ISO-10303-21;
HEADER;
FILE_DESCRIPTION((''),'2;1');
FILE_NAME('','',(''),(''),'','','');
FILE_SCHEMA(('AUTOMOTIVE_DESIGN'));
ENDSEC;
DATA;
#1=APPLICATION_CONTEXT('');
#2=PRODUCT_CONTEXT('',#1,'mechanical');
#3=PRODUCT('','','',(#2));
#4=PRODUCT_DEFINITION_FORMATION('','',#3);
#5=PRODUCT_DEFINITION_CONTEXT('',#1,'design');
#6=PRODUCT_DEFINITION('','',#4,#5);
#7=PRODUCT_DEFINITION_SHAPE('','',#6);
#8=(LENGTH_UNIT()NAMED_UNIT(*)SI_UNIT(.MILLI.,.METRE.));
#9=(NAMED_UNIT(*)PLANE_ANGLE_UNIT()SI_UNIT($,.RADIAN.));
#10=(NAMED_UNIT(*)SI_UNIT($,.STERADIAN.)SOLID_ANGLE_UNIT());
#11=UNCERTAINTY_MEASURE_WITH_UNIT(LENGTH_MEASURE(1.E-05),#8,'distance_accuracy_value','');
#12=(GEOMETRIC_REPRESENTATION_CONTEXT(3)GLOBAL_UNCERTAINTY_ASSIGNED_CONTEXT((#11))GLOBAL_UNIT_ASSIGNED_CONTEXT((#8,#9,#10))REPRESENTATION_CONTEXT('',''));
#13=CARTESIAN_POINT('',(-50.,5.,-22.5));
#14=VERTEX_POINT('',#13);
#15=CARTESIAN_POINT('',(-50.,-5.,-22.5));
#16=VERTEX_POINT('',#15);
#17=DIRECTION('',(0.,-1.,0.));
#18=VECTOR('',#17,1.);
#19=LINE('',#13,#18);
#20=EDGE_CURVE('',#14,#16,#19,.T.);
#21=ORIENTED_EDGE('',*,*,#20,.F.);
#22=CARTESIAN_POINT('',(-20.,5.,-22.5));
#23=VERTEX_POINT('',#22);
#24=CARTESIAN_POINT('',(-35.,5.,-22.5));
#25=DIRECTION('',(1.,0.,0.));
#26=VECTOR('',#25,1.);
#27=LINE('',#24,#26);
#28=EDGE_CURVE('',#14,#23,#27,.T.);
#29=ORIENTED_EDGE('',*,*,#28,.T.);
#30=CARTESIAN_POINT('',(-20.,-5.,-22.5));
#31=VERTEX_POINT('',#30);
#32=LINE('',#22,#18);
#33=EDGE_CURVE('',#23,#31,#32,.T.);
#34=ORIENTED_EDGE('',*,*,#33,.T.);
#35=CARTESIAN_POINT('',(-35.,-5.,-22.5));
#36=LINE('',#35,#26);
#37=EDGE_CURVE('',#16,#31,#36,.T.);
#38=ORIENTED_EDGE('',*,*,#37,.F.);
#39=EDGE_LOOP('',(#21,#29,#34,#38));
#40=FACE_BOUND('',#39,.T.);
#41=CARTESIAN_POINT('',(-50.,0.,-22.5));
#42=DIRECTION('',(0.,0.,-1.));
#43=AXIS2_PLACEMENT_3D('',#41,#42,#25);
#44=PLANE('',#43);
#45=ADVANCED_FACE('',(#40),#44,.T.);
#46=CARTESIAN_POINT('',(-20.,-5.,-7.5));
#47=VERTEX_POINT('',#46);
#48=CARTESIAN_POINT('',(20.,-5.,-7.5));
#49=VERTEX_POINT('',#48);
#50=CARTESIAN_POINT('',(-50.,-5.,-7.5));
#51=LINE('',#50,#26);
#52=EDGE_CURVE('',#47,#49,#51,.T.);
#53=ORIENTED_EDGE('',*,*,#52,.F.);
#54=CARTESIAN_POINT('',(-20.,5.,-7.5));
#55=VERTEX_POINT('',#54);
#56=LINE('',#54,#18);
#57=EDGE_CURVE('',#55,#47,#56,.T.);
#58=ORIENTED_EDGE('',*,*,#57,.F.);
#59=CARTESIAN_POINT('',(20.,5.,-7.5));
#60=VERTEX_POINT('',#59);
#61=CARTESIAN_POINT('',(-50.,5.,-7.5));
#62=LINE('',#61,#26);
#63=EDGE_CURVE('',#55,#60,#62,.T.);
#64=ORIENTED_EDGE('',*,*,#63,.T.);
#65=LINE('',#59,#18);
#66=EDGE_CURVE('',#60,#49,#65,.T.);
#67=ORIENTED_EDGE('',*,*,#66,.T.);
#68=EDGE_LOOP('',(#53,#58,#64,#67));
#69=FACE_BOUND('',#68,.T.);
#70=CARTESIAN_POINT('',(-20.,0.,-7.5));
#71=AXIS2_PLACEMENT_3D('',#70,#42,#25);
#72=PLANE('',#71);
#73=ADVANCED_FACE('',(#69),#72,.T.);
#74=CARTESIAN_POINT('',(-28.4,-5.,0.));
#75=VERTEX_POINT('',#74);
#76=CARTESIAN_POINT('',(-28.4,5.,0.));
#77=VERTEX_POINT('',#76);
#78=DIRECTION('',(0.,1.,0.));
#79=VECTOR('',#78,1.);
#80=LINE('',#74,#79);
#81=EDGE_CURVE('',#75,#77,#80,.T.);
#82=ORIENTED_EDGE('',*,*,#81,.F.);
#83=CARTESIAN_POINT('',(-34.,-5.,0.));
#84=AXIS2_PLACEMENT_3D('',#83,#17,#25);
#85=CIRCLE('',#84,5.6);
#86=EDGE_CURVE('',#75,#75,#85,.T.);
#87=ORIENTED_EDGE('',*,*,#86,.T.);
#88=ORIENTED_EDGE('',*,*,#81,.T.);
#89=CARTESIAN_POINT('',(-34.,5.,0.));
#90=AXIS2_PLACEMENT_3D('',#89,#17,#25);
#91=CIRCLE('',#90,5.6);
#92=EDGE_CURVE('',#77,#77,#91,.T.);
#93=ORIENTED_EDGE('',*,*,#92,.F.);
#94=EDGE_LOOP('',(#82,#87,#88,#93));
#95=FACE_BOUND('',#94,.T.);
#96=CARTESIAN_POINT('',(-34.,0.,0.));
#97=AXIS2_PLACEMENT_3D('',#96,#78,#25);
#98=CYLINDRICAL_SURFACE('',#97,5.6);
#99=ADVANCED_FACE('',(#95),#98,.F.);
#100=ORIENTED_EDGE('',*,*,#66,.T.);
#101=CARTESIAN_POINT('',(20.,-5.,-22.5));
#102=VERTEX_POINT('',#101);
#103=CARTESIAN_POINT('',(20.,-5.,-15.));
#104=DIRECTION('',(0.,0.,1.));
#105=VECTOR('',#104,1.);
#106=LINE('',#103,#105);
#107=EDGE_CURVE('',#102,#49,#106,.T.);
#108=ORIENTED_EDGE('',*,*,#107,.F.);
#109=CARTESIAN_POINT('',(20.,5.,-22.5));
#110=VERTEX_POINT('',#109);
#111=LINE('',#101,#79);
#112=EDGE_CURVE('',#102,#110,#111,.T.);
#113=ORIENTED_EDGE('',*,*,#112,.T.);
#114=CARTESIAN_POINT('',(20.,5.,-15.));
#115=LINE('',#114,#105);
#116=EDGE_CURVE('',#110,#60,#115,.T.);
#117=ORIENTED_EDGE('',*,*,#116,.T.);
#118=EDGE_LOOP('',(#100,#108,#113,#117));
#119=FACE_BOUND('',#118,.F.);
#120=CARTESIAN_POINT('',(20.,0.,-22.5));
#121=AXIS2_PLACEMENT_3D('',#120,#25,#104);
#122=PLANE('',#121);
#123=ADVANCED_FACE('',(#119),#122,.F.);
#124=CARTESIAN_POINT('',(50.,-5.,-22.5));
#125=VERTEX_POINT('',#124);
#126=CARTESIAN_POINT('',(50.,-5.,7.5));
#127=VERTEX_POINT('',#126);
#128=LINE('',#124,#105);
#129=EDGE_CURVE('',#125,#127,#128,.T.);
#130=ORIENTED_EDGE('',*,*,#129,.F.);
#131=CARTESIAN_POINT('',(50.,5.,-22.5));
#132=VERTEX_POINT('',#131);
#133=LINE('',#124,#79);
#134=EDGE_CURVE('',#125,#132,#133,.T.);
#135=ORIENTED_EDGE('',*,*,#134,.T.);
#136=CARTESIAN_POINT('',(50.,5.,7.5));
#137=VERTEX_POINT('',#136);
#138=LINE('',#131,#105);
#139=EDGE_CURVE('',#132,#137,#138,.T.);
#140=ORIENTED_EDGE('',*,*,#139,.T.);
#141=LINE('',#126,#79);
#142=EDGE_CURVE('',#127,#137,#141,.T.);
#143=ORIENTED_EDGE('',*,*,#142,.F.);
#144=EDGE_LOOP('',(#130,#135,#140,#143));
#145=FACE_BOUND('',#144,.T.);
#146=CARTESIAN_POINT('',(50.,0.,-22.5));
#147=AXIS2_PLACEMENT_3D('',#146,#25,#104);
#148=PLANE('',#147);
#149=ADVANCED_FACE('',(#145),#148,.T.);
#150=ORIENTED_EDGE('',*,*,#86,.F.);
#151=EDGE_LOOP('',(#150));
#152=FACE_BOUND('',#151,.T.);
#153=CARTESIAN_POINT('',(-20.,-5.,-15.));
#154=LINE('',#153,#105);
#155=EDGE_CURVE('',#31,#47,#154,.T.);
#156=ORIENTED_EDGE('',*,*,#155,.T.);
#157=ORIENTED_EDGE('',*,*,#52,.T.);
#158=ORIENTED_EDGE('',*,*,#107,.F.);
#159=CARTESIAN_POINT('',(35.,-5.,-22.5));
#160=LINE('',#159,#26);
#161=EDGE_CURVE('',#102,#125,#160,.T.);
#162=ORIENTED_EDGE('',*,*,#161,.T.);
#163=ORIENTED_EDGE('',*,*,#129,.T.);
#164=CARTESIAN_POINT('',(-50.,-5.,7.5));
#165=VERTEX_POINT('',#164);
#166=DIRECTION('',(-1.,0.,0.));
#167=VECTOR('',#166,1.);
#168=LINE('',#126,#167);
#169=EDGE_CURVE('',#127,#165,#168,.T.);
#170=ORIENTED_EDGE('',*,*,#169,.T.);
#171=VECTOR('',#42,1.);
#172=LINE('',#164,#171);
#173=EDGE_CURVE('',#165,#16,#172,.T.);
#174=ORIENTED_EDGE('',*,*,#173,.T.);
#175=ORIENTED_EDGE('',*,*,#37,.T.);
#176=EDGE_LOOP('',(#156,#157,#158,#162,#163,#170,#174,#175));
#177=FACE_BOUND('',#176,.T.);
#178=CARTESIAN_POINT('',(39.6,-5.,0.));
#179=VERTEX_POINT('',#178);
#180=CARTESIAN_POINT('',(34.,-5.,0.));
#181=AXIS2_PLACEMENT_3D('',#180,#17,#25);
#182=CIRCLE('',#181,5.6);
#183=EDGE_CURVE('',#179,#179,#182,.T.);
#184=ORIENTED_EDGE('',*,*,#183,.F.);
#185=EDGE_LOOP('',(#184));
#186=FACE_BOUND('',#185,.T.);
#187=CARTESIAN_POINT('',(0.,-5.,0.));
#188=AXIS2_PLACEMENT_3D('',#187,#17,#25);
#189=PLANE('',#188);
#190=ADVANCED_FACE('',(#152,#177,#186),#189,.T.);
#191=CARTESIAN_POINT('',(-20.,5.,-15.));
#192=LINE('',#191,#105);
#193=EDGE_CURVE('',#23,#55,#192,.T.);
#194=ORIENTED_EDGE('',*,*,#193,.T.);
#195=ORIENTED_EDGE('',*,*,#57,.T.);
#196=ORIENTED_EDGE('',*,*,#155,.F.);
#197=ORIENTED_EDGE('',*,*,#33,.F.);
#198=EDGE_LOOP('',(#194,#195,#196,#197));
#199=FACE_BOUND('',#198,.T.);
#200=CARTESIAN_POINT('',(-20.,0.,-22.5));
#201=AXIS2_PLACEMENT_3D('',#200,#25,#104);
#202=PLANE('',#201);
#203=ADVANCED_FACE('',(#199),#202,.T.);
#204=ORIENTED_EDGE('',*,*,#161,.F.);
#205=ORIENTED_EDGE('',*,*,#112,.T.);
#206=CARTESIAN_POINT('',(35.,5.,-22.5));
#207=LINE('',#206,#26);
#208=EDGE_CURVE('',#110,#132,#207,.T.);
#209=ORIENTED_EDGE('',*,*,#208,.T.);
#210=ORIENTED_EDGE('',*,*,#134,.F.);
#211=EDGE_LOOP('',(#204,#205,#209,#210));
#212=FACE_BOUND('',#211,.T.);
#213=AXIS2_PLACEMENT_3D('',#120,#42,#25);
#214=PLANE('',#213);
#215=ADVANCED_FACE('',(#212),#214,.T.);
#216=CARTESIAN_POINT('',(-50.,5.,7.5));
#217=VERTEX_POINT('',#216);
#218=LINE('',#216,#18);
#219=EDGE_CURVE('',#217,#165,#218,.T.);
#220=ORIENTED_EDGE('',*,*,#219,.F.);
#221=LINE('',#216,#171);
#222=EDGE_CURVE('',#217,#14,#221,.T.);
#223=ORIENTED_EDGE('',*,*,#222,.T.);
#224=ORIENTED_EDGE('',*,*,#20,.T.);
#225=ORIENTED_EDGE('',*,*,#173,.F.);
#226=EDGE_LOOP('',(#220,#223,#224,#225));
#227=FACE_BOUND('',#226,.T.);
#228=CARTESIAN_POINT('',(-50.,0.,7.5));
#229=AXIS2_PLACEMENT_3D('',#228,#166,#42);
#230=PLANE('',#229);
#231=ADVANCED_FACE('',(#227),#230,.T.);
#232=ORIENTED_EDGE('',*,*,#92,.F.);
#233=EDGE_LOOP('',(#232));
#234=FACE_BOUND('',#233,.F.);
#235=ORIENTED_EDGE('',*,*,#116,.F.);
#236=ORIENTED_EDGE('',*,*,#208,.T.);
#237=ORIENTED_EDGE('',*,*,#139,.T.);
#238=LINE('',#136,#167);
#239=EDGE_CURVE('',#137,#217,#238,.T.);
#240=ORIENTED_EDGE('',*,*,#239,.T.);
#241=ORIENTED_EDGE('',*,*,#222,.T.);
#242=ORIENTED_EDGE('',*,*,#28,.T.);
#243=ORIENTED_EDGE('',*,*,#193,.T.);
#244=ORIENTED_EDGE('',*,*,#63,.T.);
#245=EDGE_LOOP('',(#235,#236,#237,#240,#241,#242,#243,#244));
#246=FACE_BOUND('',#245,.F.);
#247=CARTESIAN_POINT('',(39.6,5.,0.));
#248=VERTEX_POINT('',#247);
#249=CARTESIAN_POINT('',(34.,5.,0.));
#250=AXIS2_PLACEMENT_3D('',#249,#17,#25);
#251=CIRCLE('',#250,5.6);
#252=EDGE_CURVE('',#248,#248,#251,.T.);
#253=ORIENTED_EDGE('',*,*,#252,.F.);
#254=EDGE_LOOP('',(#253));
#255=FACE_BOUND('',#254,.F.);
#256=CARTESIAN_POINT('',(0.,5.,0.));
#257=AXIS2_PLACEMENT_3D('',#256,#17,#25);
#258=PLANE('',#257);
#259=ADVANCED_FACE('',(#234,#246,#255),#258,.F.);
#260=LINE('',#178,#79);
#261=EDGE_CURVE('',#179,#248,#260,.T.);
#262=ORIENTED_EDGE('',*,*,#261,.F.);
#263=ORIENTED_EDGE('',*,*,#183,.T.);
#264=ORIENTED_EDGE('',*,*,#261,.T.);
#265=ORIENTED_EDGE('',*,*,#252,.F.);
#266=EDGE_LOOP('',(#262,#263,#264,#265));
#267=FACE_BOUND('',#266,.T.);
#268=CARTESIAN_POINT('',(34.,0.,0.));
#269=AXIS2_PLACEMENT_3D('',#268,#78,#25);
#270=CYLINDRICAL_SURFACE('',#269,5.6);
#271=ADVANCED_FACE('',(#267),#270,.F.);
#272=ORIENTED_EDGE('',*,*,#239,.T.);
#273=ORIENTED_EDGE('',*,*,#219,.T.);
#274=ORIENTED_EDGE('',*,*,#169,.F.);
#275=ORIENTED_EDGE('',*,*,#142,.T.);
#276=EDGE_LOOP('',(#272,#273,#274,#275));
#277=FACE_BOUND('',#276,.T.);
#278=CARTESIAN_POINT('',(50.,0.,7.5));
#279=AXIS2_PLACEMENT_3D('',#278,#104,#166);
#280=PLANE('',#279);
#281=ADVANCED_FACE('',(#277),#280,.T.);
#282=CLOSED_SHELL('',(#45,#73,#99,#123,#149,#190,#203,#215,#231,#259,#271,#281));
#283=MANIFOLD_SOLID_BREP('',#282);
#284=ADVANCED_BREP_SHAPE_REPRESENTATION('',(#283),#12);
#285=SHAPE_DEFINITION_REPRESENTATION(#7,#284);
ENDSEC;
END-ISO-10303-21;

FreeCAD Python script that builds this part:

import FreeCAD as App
import Part
import Sketcher
from FreeCAD import Vector


def add_polygon(sketch, points):
    """Adds a closed chain of lines whose ends are joined by coincident constraints."""
    first, n = sketch.GeometryCount, len(points)
    for a, b in zip(points, points[1:] + points[:1]):
        sketch.addGeometry(Part.LineSegment(App.Vector(*a, 0), App.Vector(*b, 0)), False)
    for i in range(n):
        sketch.addConstraint(Sketcher.Constraint("Coincident", first + i, 2, first + (i + 1) % n, 1))

doc = App.newDocument("Part")
body = doc.addObject("PartDesign::Body", "Body")

# Sketch on XZ plane
sketch1 = body.newObject("Sketcher::SketchObject", "Sketch")
sketch1.AttachmentSupport = (doc.getObject("XZ_Plane"), [""])
sketch1.MapMode = "FlatFace"
add_polygon(sketch1, [(50, 8), (-50, 8), (-50, -22), (-20, -22), (-20, -8), (20, -8), (20, -22), (50, -22)])  # lines 0-7
sketch1.addGeometry(Part.Circle(Vector(-34, 0, 0), Vector(0, 0, 1), 6), False)  # 8
sketch1.addGeometry(Part.Circle(Vector(34, 0, 0), Vector(0, 0, 1), 6), False)  # 9
sketch1.addConstraint([
    Sketcher.Constraint("Horizontal", 0),
    Sketcher.Constraint("Vertical", 1),
    Sketcher.Constraint("Horizontal", 2),
    Sketcher.Constraint("Vertical", 3),
    Sketcher.Constraint("Horizontal", 4),
    Sketcher.Constraint("Vertical", 5),
    Sketcher.Constraint("Horizontal", 6),
    Sketcher.Constraint("Vertical", 7),
    Sketcher.Constraint("Equal", 8, 9),
    Sketcher.Constraint("Symmetric", 8, 3, 9, 3, -1, 1),
    Sketcher.Constraint("Symmetric", 2, 2, 5, 2, -2),
    Sketcher.Constraint("PointOnObject", 8, 3, -1),
    Sketcher.Constraint("Equal", 2, 6),
    Sketcher.Constraint("Equal", 6, 1),
    Sketcher.Constraint("Diameter", 8, 11.2),
    Sketcher.Constraint("DistanceX", 0, 2, 0, 1, 100.0),
    Sketcher.Constraint("DistanceX", 2, 1, 2, 2, 30.0),
    Sketcher.Constraint("DistanceY", 3, 1, 3, 2, 15.0),
    Sketcher.Constraint("DistanceX", 8, 3, -1, 1, 34.0),
    Sketcher.Constraint("DistanceY", -1, 1, 0, 2, 7.5),
])
pad1 = body.newObject("PartDesign::Pad", "Pad")
pad1.Profile = sketch1
pad1.Length = 10
pad1.Midplane = True

doc.recompute()
